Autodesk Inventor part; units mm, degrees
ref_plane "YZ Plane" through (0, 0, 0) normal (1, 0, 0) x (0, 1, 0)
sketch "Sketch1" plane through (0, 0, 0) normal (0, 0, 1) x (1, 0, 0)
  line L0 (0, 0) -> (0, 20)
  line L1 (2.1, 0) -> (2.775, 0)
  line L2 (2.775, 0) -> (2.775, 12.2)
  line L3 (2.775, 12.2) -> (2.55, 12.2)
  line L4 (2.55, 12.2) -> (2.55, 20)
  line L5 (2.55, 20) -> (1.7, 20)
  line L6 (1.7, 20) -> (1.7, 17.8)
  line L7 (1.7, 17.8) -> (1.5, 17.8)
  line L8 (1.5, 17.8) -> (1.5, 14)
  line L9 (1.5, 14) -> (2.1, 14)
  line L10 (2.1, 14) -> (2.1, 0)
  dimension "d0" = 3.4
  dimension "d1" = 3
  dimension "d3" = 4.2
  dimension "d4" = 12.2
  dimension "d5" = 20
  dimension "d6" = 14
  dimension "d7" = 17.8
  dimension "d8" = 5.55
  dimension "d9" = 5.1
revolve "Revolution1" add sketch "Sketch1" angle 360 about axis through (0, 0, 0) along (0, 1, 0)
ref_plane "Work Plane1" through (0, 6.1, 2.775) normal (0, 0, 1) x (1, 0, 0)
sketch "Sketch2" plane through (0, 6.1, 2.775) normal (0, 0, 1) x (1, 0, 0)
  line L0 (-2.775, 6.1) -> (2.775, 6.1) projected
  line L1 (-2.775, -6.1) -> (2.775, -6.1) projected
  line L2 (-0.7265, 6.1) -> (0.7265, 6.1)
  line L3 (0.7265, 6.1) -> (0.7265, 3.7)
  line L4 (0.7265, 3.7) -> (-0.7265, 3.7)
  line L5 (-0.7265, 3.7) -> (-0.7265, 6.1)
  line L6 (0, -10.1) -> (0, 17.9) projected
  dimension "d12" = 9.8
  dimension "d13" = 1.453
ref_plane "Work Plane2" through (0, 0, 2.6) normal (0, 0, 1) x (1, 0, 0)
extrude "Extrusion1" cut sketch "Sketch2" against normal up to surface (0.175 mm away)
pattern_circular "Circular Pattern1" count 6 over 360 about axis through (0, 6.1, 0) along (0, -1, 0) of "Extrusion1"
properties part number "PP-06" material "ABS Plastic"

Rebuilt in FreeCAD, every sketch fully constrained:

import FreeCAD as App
import Part
import Sketcher
from FreeCAD import Vector

doc = App.newDocument("Part")
params = doc.addObject("Spreadsheet::Sheet", "Params")
for row, (alias, value) in enumerate([
    ("sketch1_height", "14 mm"),
    ("sketch1_height2", "12.2 mm"),
    ("sketch1_width", "0.2 mm"),
    ("sketch1_width2", "0.6 mm"),
    ("sketch1_width3", "0.85 mm"),
    ("revolution_angle", "360 deg"),
    ("sketch2_height", "2.4 mm"),
    ("pocket1_length", "0.175 mm"),
], start=1):
    params.set(f"A{row}", alias)
    params.set(f"B{row}", "=" + value)
    params.setAlias(f"B{row}", alias)

body = doc.addObject("PartDesign::Body", "Body")

# Sketch on XY plane
sketch1 = body.newObject("Sketcher::SketchObject", "Sketch")
sketch1.AttachmentSupport = (doc.getObject("XY_Plane"), [""])
sketch1.MapMode = "FlatFace"
sketch1.addGeometry(Part.LineSegment(Vector(2.1, 14, 0), Vector(2.1, 0, 0)), False)
sketch1.addGeometry(Part.LineSegment(Vector(2.1, 0, 0), Vector(2.77, 0, 0)), False)
sketch1.addGeometry(Part.LineSegment(Vector(2.77, 0, 0), Vector(2.77, 12.2, 0)), False)
sketch1.addGeometry(Part.LineSegment(Vector(2.77, 12.2, 0), Vector(2.55, 12.2, 0)), False)
sketch1.addGeometry(Part.LineSegment(Vector(2.55, 12.2, 0), Vector(2.55, 20, 0)), False)
sketch1.addGeometry(Part.LineSegment(Vector(2.55, 20, 0), Vector(1.7, 20, 0)), False)
sketch1.addGeometry(Part.LineSegment(Vector(1.7, 20, 0), Vector(1.7, 17.8, 0)), False)
sketch1.addGeometry(Part.LineSegment(Vector(1.7, 17.8, 0), Vector(1.5, 17.8, 0)), False)
sketch1.addGeometry(Part.LineSegment(Vector(1.5, 17.8, 0), Vector(1.5, 14, 0)), False)
sketch1.addGeometry(Part.LineSegment(Vector(1.5, 14, 0), Vector(2.1, 14, 0)), False)
sketch1.addConstraint(Sketcher.Constraint("Coincident", 0, 2, 1, 1))
sketch1.addConstraint(Sketcher.Constraint("Coincident", 1, 2, 2, 1))
sketch1.addConstraint(Sketcher.Constraint("Coincident", 2, 2, 3, 1))
sketch1.addConstraint(Sketcher.Constraint("Coincident", 3, 2, 4, 1))
sketch1.addConstraint(Sketcher.Constraint("Coincident", 4, 2, 5, 1))
sketch1.addConstraint(Sketcher.Constraint("Coincident", 5, 2, 6, 1))
sketch1.addConstraint(Sketcher.Constraint("Coincident", 6, 2, 7, 1))
sketch1.addConstraint(Sketcher.Constraint("Coincident", 7, 2, 8, 1))
sketch1.addConstraint(Sketcher.Constraint("Coincident", 8, 2, 9, 1))
sketch1.addConstraint(Sketcher.Constraint("Coincident", 9, 2, 0, 1))
sketch1.addConstraint(Sketcher.Constraint("Vertical", 0))
sketch1.addConstraint(Sketcher.Constraint("Horizontal", 1))
sketch1.addConstraint(Sketcher.Constraint("Vertical", 2))
sketch1.addConstraint(Sketcher.Constraint("Horizontal", 3))
sketch1.addConstraint(Sketcher.Constraint("Vertical", 4))
sketch1.addConstraint(Sketcher.Constraint("Horizontal", 5))
sketch1.addConstraint(Sketcher.Constraint("Vertical", 6))
sketch1.addConstraint(Sketcher.Constraint("Horizontal", 7))
sketch1.addConstraint(Sketcher.Constraint("Vertical", 8))
sketch1.addConstraint(Sketcher.Constraint("Horizontal", 9))
sketch1.addConstraint(Sketcher.Constraint("PointOnObject", 0, 2, -1))
sketch1.addConstraint(Sketcher.Constraint("DistanceY", 0, 2, 0, 1, 14.0))
sketch1.addConstraint(Sketcher.Constraint("DistanceY", 2, 1, 2, 2, 12.2))
sketch1.addConstraint(Sketcher.Constraint("DistanceY", -1, 1, 4, 2, 20.0))
sketch1.addConstraint(Sketcher.Constraint("DistanceY", -1, 1, 6, 2, 17.8))
sketch1.addConstraint(Sketcher.Constraint("DistanceX", 7, 2, 7, 1, 0.2))
sketch1.addConstraint(Sketcher.Constraint("DistanceX", 9, 1, 9, 2, 0.6))
sketch1.addConstraint(Sketcher.Constraint("DistanceX", 5, 2, 5, 1, 0.85))
sketch1.addConstraint(Sketcher.Constraint("DistanceX", -1, 1, 0, 2, 2.1))
sketch1.addConstraint(Sketcher.Constraint("DistanceX", 1, 1, 1, 2, 0.675))
sketch1.setExpression("Constraints[21]", "Params.sketch1_height")
sketch1.setExpression("Constraints[22]", "Params.sketch1_height2")
sketch1.setExpression("Constraints[25]", "Params.sketch1_width")
sketch1.setExpression("Constraints[26]", "Params.sketch1_width2")
sketch1.setExpression("Constraints[27]", "Params.sketch1_width3")
revolution = body.newObject("PartDesign::Revolution", "Revolution")
revolution.Profile = sketch1
revolution.ReferenceAxis = (sketch1, ["V_Axis"])
revolution.setExpression("Angle", "Params.revolution_angle")

# Sketch on XY plane
sketch2 = body.newObject("Sketcher::SketchObject", "Sketch001")
sketch2.AttachmentSupport = (doc.getObject("XY_Plane"), [""])
sketch2.MapMode = "FlatFace"
sketch2.AttachmentOffset = App.Placement(Vector(0, 0, 2.775), App.Rotation())
sketch2.addGeometry(Part.LineSegment(Vector(-0.7, 12.2, 0), Vector(-0.7, 9.8, 0)), False)
sketch2.addGeometry(Part.LineSegment(Vector(-0.7, 9.8, 0), Vector(0.7, 9.8, 0)), False)
sketch2.addGeometry(Part.LineSegment(Vector(0.7, 9.8, 0), Vector(0.7, 12.2, 0)), False)
sketch2.addGeometry(Part.LineSegment(Vector(0.7, 12.2, 0), Vector(-0.7, 12.2, 0)), False)
sketch2.addConstraint(Sketcher.Constraint("Coincident", 0, 2, 1, 1))
sketch2.addConstraint(Sketcher.Constraint("Coincident", 1, 2, 2, 1))
sketch2.addConstraint(Sketcher.Constraint("Coincident", 2, 2, 3, 1))
sketch2.addConstraint(Sketcher.Constraint("Coincident", 3, 2, 0, 1))
sketch2.addConstraint(Sketcher.Constraint("Vertical", 0))
sketch2.addConstraint(Sketcher.Constraint("Horizontal", 1))
sketch2.addConstraint(Sketcher.Constraint("Vertical", 2))
sketch2.addConstraint(Sketcher.Constraint("Horizontal", 3))
sketch2.addConstraint(Sketcher.Constraint("DistanceY", -1, 1, 0, 2, 9.8))
sketch2.addConstraint(Sketcher.Constraint("DistanceX", 1, 1, 1, 2, 1.453))
sketch2.addConstraint(Sketcher.Constraint("DistanceY", 0, 2, 0, 1, 2.4))
sketch2.addConstraint(Sketcher.Constraint("DistanceX", 0, 2, -1, 1, 0.7265))
sketch2.setExpression("Constraints[10]", "Params.sketch2_height")
pocket1 = body.newObject("PartDesign::Pocket", "Pocket")
pocket1.Profile = sketch2
pocket1.setExpression("Length", "Params.pocket1_length")
doc.recompute()

polarpattern = body.newObject("PartDesign::PolarPattern", "PolarPattern")
polarpattern.Originals = [pocket1]
polarpattern.Axis = (doc.getObject("Y_Axis"), [""])
polarpattern.Angle = 360
polarpattern.Occurrences = 6
body.Tip = polarpattern

doc.recompute()
